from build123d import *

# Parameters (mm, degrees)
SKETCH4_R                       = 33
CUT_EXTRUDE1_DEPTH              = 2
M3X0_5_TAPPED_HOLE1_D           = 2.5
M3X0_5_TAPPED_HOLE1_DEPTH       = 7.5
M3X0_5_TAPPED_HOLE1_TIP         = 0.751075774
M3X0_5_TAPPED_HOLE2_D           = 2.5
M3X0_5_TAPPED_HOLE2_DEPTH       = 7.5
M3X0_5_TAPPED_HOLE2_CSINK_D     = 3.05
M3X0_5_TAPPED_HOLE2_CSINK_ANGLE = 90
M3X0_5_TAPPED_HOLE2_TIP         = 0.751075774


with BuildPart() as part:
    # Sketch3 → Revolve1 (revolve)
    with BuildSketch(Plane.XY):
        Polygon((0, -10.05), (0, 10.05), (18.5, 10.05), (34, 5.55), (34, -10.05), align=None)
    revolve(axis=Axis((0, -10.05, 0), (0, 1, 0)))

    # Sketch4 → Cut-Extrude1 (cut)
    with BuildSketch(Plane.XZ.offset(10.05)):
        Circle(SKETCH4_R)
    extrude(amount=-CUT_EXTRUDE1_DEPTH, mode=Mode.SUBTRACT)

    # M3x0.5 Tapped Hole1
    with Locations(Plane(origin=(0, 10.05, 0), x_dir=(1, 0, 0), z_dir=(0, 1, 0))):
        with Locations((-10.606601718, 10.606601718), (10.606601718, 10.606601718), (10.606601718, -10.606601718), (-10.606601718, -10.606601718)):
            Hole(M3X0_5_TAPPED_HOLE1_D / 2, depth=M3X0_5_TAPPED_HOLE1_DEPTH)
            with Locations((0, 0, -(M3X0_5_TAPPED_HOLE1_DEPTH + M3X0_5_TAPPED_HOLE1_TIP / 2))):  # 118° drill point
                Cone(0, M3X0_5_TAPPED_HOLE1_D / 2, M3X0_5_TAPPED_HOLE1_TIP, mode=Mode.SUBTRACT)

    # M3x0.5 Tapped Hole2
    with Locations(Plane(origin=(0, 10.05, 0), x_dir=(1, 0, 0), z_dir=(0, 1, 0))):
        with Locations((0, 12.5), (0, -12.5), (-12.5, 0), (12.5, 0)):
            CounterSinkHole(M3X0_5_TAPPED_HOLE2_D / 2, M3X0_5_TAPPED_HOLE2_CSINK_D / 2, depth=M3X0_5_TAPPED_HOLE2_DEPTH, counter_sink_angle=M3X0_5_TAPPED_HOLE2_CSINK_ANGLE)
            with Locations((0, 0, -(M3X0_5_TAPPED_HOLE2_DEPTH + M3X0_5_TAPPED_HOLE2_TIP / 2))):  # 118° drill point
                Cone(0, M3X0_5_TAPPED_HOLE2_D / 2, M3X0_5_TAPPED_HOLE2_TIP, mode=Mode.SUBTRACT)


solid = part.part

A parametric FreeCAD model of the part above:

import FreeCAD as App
import Part
import Sketcher

V = App.Vector
Q = App.Units.Quantity

doc = App.newDocument("Part")
params = doc.addObject("Spreadsheet::Sheet", "Params")
for row, (alias, value) in enumerate([
    ("sketch1_width", "34 mm"),
    ("sketch1_width2", "18.5 mm"),
    ("sketch1_height", "20.1 mm"),
    ("sketch1_height2", "15.6 mm"),
    ("revolution_angle", "360 deg"),
    ("sketch2_diameter", "66 mm"),
    ("pocket1_length", "2 mm"),
    ("sketch3_diameter", "2.5 mm"),
    ("hole_diameter", "2.5 mm"),
    ("hole_depth", "7.5 mm"),
    ("sketch4_diameter", "2.5 mm"),
    ("hole2_diameter", "2.5 mm"),
    ("hole2_depth", "7.5 mm"),
    ("hole2_csink_diameter", "3.05 mm"),
], start=1):
    params.set(f"A{row}", alias)
    params.set(f"B{row}", "=" + value)
    params.setAlias(f"B{row}", alias)

body = doc.addObject("PartDesign::Body", "Body")

# Sketch on XY plane
sketch1 = doc.addObject("Sketcher::SketchObject", "Sketch")
body.addObject(sketch1)
sketch1.AttachmentSupport = (doc.XY_Plane, [""])
sketch1.MapMode = "FlatFace"
sketch1.addGeometry([
    Part.LineSegment(V(0, 10, 0), V(0, -10, 0)),  # 0
    Part.LineSegment(V(0, -10, 0), V(34, -10, 0)),  # 1
    Part.LineSegment(V(34, -10, 0), V(34, 6, 0)),  # 2
    Part.LineSegment(V(34, 6, 0), V(18, 10, 0)),  # 3
    Part.LineSegment(V(18, 10, 0), V(0, 10, 0)),  # 4
], False)
sketch1.addConstraint([
    Sketcher.Constraint("Coincident", 0, 2, 1, 1),
    Sketcher.Constraint("Coincident", 1, 2, 2, 1),
    Sketcher.Constraint("Coincident", 2, 2, 3, 1),
    Sketcher.Constraint("Coincident", 3, 2, 4, 1),
    Sketcher.Constraint("Coincident", 4, 2, 0, 1),
    Sketcher.Constraint("Vertical", 0),
    Sketcher.Constraint("Horizontal", 1),
    Sketcher.Constraint("Vertical", 2),
    Sketcher.Constraint("Horizontal", 4),
    Sketcher.Constraint("Symmetric", 0, 2, 4, 2, -1, 1),
    Sketcher.Constraint("DistanceX", 1, 1, 1, 2, Q("34 mm")),
    Sketcher.Constraint("DistanceX", 4, 2, 4, 1, Q("18.5 mm")),
    Sketcher.Constraint("DistanceY", 0, 2, 0, 1, Q("20.1 mm")),
    Sketcher.Constraint("DistanceY", 2, 1, 2, 2, Q("15.6 mm")),
])
sketch1.setExpression("Constraints[10]", "Params.sketch1_width")
sketch1.setExpression("Constraints[11]", "Params.sketch1_width2")
sketch1.setExpression("Constraints[12]", "Params.sketch1_height")
sketch1.setExpression("Constraints[13]", "Params.sketch1_height2")
revolution = doc.addObject("PartDesign::Revolution", "Revolution")
body.addObject(revolution)
revolution.Profile = sketch1
revolution.ReferenceAxis = (sketch1, ["V_Axis"])
revolution.setExpression("Angle", "Params.revolution_angle")

# Sketch on XZ plane
sketch2 = doc.addObject("Sketcher::SketchObject", "Sketch001")
body.addObject(sketch2)
sketch2.AttachmentSupport = (doc.XZ_Plane, [""])
sketch2.MapMode = "FlatFace"
sketch2.AttachmentOffset = App.Placement(V(0, 0, 10.05), App.Rotation())
sketch2.addGeometry(Part.Circle(V(0, 0, 0), V(0, 0, 1), 33), False)
sketch2.addConstraint([
    Sketcher.Constraint("Coincident", 0, 3, -1, 1),
    Sketcher.Constraint("Diameter", 0, Q("66 mm")),
])
sketch2.setExpression("Constraints[1]", "Params.sketch2_diameter")
pocket1 = doc.addObject("PartDesign::Pocket", "Pocket")
body.addObject(pocket1)
pocket1.Profile = sketch2
pocket1.setExpression("Length", "Params.pocket1_length")

# Sketch on XZ plane
sketch3 = doc.addObject("Sketcher::SketchObject", "Sketch002")
body.addObject(sketch3)
sketch3.AttachmentSupport = (doc.XZ_Plane, [""])
sketch3.MapMode = "FlatFace"
sketch3.AttachmentOffset = App.Placement(V(0, 0, -10.05), App.Rotation())
sketch3.addGeometry([
    Part.Circle(V(-10.6, -10.6, 0), V(0, 0, 1), 1.2),
    Part.Circle(V(10.6, -10.6, 0), V(0, 0, 1), 1.2),
    Part.Circle(V(10.6, 10.6, 0), V(0, 0, 1), 1.2),
    Part.Circle(V(-10.6, 10.6, 0), V(0, 0, 1), 1.2),
], False)
sketch3.addConstraint([
    Sketcher.Constraint("Equal", 0, 1),
    Sketcher.Constraint("Equal", 1, 2),
    Sketcher.Constraint("Equal", 2, 3),
    Sketcher.Constraint("Symmetric", 0, 3, 2, 3, -1, 1),
    Sketcher.Constraint("Symmetric", 1, 3, 3, 3, -1, 1),
    Sketcher.Constraint("Symmetric", 0, 3, 1, 3, -2),
    Sketcher.Constraint("Diameter", 0, Q("2.5 mm")),
    Sketcher.Constraint("DistanceX", 0, 3, -1, 1, Q("10.606602 mm")),
    Sketcher.Constraint("DistanceY", 0, 3, -1, 1, Q("10.606602 mm")),
])
sketch3.setExpression("Constraints[6]", "Params.sketch3_diameter")
doc.recompute()
hole = doc.addObject("PartDesign::Hole", "Hole")
body.addObject(hole)
hole.Profile = sketch3
hole.ThreadType = "None"
hole.setExpression("Diameter", "Params.hole_diameter")
hole.DepthType = "Dimension"
hole.setExpression("Depth", "Params.hole_depth")
hole.DrillPoint = "Angled"
hole.DrillPointAngle = 118
hole.Reversed = True

# Sketch on XZ plane
sketch4 = doc.addObject("Sketcher::SketchObject", "Sketch003")
body.addObject(sketch4)
sketch4.AttachmentSupport = (doc.XZ_Plane, [""])
sketch4.MapMode = "FlatFace"
sketch4.AttachmentOffset = App.Placement(V(0, 0, -10.05), App.Rotation())
sketch4.addGeometry([
    Part.Circle(V(0, -12.5, 0), V(0, 0, 1), 1.2),
    Part.Circle(V(0, 12.5, 0), V(0, 0, 1), 1.2),
    Part.Circle(V(-12.5, 0, 0), V(0, 0, 1), 1.2),
    Part.Circle(V(12.5, 0, 0), V(0, 0, 1), 1.2),
], False)
sketch4.addConstraint([
    Sketcher.Constraint("Equal", 0, 1),
    Sketcher.Constraint("Equal", 1, 2),
    Sketcher.Constraint("Equal", 2, 3),
    Sketcher.Constraint("Symmetric", 0, 3, 1, 3, -1, 1),
    Sketcher.Constraint("Symmetric", 2, 3, 3, 3, -1, 1),
    Sketcher.Constraint("PointOnObject", 0, 3, -2),
    Sketcher.Constraint("PointOnObject", 2, 3, -1),
    Sketcher.Constraint("Diameter", 0, Q("2.5 mm")),
    Sketcher.Constraint("DistanceY", 0, 3, 1, 3, Q("25 mm")),
    Sketcher.Constraint("DistanceX", 2, 3, 3, 3, Q("25 mm")),
])
sketch4.setExpression("Constraints[7]", "Params.sketch4_diameter")
doc.recompute()
hole2 = doc.addObject("PartDesign::Hole", "Hole001")
body.addObject(hole2)
hole2.Profile = sketch4
hole2.ThreadType = "None"
hole2.setExpression("Diameter", "Params.hole2_diameter")
hole2.DepthType = "Dimension"
hole2.setExpression("Depth", "Params.hole2_depth")
hole2.DrillPoint = "Angled"
hole2.DrillPointAngle = 118
hole2.HoleCutType = "Countersink"
hole2.setExpression("HoleCutDiameter", "Params.hole2_csink_diameter")
hole2.HoleCutCountersinkAngle = 90
hole2.Reversed = True

doc.recompute()
